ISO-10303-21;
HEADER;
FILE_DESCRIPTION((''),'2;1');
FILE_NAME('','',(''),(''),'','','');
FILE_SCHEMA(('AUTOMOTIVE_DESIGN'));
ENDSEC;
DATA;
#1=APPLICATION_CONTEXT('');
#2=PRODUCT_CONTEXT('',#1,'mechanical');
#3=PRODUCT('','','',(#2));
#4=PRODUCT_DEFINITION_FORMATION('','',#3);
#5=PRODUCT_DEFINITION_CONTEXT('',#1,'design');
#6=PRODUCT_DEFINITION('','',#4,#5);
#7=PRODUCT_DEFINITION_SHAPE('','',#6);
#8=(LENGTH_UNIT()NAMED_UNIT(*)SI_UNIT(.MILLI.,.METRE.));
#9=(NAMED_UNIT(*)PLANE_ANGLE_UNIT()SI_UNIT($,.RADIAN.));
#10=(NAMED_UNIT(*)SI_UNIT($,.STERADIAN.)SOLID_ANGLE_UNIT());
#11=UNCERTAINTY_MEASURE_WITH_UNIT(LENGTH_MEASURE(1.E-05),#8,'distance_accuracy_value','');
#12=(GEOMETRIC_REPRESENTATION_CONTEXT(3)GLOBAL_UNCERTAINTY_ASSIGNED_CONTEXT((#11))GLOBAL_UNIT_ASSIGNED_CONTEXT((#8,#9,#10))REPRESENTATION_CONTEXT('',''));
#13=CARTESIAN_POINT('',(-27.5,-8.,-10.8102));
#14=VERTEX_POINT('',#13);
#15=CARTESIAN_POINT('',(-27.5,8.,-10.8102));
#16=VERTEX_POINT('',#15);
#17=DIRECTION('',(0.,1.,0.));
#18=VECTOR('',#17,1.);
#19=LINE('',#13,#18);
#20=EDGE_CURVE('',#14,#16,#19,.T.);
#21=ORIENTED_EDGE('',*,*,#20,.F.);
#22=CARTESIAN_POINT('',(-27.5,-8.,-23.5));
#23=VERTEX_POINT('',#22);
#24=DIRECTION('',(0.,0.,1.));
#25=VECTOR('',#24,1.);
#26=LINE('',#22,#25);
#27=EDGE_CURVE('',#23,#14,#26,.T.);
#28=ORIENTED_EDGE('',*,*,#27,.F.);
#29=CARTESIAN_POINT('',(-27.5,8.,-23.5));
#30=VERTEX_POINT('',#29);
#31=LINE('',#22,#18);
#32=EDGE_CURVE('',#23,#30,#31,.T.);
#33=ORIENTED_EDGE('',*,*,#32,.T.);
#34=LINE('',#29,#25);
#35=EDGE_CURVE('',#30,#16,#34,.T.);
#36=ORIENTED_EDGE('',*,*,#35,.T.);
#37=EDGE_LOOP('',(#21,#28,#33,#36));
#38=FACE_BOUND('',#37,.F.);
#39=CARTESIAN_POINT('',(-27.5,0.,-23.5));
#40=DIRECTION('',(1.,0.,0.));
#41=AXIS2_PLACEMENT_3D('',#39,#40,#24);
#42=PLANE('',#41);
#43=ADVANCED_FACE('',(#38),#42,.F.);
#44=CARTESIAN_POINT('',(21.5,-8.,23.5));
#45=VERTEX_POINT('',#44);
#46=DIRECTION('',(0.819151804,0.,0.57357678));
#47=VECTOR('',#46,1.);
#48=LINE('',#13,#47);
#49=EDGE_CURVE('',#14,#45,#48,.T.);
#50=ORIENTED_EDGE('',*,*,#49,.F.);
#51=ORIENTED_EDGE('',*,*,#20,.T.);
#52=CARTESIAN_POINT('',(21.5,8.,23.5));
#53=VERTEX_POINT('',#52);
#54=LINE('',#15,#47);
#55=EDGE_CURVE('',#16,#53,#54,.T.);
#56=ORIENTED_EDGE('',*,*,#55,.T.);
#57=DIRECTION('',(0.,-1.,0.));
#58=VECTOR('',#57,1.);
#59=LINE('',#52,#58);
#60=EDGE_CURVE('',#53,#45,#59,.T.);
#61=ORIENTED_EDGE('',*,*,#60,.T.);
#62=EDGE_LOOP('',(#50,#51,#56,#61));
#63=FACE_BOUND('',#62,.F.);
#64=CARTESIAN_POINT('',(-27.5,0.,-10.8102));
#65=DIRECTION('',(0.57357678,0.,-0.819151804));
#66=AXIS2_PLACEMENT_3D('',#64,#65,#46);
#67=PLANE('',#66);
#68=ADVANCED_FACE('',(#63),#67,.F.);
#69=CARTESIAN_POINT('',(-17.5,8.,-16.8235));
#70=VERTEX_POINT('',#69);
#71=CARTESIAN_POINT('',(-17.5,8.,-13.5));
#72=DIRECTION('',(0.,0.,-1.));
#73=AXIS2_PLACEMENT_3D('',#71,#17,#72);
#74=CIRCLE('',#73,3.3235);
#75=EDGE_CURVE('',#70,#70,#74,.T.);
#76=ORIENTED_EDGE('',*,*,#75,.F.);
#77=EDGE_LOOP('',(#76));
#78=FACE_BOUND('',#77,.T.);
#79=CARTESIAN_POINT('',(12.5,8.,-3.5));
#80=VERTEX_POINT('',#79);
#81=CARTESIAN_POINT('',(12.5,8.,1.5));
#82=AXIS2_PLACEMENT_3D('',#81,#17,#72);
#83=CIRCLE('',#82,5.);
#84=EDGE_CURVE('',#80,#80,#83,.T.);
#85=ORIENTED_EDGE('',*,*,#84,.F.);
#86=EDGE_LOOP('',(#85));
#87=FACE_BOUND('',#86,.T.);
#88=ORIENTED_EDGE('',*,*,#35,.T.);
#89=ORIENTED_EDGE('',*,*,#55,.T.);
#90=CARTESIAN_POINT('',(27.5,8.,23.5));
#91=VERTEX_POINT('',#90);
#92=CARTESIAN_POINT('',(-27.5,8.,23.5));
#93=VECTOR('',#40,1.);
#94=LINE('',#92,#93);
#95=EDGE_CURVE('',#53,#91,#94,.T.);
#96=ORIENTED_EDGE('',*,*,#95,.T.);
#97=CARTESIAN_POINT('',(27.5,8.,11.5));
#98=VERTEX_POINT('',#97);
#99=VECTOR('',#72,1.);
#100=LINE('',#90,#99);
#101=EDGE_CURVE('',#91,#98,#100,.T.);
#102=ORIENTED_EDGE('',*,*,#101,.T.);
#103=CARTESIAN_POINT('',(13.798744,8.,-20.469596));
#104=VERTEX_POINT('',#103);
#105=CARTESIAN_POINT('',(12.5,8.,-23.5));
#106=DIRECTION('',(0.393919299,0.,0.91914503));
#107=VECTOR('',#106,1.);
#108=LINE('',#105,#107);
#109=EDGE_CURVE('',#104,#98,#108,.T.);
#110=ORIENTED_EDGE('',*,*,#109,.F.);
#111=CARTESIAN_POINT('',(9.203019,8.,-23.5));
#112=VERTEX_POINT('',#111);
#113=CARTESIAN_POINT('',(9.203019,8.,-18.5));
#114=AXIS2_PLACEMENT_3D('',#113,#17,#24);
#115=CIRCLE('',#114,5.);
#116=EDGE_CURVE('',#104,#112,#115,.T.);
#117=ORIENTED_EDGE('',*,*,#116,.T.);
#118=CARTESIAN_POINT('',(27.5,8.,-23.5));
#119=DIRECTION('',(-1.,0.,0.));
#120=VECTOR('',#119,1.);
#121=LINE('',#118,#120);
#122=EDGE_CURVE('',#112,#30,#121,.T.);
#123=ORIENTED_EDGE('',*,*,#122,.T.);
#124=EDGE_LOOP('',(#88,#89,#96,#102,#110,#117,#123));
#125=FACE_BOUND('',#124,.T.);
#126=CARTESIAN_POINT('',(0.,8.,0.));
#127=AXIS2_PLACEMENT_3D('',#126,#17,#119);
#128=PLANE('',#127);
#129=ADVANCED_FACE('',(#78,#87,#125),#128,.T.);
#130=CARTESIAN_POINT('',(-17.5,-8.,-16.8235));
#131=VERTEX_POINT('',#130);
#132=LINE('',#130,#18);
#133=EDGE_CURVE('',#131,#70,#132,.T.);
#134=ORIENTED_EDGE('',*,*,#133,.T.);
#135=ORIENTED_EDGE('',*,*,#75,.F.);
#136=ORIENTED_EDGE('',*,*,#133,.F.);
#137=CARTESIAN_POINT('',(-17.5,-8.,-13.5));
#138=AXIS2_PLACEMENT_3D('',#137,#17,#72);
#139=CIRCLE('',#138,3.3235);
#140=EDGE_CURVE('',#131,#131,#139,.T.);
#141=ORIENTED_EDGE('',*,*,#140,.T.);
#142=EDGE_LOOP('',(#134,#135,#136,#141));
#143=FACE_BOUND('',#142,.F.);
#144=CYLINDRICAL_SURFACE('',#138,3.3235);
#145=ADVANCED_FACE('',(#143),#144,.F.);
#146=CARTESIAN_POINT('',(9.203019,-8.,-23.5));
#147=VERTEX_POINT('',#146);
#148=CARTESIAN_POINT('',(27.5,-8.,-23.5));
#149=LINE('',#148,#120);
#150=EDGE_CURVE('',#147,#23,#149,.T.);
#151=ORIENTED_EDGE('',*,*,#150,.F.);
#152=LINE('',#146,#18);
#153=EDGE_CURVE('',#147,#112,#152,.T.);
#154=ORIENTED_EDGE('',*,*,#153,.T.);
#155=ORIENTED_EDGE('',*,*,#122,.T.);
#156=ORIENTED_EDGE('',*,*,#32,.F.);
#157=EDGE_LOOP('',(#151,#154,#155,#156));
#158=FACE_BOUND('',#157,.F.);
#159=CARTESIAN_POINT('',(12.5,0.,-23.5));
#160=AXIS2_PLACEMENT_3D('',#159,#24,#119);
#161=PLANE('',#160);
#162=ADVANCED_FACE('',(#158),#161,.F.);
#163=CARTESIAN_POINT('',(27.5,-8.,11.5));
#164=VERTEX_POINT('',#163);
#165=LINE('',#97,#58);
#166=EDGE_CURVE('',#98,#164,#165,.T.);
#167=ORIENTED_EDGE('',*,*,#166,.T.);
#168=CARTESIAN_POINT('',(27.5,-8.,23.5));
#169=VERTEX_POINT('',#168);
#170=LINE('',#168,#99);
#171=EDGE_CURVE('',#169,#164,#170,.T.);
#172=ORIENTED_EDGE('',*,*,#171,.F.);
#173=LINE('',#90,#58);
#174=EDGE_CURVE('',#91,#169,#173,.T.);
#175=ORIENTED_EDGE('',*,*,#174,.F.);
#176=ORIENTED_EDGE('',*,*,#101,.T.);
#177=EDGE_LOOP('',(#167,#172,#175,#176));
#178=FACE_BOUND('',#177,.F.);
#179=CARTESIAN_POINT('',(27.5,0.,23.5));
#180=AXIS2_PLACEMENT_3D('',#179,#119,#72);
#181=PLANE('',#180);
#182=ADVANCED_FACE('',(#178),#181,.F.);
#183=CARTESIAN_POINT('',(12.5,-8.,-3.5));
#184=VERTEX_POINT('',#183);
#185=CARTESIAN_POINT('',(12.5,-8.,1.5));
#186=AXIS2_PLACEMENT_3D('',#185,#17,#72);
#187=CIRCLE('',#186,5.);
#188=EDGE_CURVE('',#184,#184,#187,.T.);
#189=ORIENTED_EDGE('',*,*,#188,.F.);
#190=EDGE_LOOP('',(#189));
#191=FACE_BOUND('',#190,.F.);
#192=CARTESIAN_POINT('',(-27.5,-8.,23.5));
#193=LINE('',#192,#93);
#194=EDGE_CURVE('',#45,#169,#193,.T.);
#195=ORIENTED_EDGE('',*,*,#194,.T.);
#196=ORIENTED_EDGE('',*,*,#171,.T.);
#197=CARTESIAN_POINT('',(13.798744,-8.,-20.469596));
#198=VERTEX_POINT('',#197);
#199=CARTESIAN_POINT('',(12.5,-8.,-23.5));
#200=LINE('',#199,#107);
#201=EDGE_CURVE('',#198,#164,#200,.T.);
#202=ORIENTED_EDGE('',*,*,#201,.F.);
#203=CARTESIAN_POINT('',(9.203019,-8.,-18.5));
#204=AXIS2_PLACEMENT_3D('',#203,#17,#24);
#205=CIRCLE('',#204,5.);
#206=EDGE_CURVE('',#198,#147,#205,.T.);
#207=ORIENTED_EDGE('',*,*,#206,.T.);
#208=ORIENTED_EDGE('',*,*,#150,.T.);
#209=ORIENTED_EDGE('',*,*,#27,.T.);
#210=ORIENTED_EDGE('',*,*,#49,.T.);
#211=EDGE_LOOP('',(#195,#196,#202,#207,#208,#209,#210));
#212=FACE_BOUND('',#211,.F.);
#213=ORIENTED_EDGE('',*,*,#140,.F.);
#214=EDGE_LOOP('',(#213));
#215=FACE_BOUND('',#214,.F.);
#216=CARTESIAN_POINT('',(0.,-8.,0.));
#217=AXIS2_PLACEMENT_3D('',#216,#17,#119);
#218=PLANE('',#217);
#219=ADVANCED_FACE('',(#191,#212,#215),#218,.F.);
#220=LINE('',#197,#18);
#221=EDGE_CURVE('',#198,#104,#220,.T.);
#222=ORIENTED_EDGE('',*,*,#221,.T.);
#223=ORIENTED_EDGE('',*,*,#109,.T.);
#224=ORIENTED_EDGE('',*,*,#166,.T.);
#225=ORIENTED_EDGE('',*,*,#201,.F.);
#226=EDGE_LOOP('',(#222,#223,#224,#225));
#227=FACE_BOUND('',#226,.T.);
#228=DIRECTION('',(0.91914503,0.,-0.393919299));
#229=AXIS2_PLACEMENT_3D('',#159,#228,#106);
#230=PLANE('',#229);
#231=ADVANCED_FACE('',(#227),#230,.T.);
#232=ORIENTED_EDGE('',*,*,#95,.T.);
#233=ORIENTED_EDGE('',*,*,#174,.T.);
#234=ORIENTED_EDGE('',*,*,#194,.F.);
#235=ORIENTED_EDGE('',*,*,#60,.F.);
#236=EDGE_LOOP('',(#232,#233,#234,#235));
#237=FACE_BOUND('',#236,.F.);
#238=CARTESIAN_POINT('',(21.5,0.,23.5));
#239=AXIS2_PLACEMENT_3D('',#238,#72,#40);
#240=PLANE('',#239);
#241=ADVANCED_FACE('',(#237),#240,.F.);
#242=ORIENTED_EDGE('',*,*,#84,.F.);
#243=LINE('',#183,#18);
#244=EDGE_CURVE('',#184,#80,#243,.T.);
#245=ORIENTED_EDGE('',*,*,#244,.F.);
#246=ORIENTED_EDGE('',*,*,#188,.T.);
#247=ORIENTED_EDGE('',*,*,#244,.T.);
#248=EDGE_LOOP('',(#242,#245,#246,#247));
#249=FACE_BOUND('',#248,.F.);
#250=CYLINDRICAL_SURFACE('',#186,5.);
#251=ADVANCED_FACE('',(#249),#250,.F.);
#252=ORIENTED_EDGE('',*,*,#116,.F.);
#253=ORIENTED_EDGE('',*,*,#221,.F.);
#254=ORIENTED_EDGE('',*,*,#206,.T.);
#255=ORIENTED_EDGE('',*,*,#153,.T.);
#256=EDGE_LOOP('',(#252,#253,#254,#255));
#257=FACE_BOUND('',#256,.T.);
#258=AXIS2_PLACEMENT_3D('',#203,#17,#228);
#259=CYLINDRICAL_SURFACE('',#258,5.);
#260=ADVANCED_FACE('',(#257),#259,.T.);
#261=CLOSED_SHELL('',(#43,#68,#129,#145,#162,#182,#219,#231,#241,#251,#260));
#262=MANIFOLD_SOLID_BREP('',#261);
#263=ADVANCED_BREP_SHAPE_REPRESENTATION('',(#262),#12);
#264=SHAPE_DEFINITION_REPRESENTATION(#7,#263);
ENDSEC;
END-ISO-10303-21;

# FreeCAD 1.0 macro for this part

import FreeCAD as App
import Part
import Sketcher
Q = App.Units.Quantity


def edges_at(feature, points):
    """Names of the edges that pass closest to the given points."""
    edges = feature.Shape.Edges
    near = lambda p: min(range(len(edges)), key=lambda i: edges[i].distToShape(Part.Vertex(*p))[0])
    return sorted({f"Edge{near(p) + 1}" for p in points})

doc = App.newDocument("Part")
params = doc.addObject("Spreadsheet::Sheet", "Params")
for row, (alias, value) in enumerate([
    ("sketch1_width", "6 mm"),
    ("pad1_length", "16 mm"),
    ("sketch2_diameter", "10 mm"),
    ("hole_diameter", "10 mm"),
    ("hole2_diameter", "6.647 mm"),
    ("fillet_radius", "5 mm"),
], start=1):
    params.set(f"A{row}", alias)
    params.set(f"B{row}", "=" + value)
    params.setAlias(f"B{row}", alias)

body = doc.addObject("PartDesign::Body", "Body")

# Sketch on XZ plane
sketch1 = body.newObject("Sketcher::SketchObject", "Sketch")
sketch1.AttachmentSupport = (doc.getObject("XZ_Plane"), [""])
sketch1.MapMode = "FlatFace"
sketch1.addGeometry(Part.LineSegment(App.Vector(28, 12, 0), App.Vector(12, -24, 0)), False)
sketch1.addGeometry(Part.LineSegment(App.Vector(12, -24, 0), App.Vector(-28, -24, 0)), False)
sketch1.addGeometry(Part.LineSegment(App.Vector(-28, -24, 0), App.Vector(-28, -11, 0)), False)
sketch1.addGeometry(Part.LineSegment(App.Vector(-28, -11, 0), App.Vector(22, 24, 0)), False)
sketch1.addGeometry(Part.LineSegment(App.Vector(22, 24, 0), App.Vector(28, 24, 0)), False)
sketch1.addGeometry(Part.LineSegment(App.Vector(28, 24, 0), App.Vector(28, 12, 0)), False)
sketch1.addConstraint(Sketcher.Constraint("Coincident", 0, 2, 1, 1))
sketch1.addConstraint(Sketcher.Constraint("Coincident", 1, 2, 2, 1))
sketch1.addConstraint(Sketcher.Constraint("Coincident", 2, 2, 3, 1))
sketch1.addConstraint(Sketcher.Constraint("Coincident", 3, 2, 4, 1))
sketch1.addConstraint(Sketcher.Constraint("Coincident", 4, 2, 5, 1))
sketch1.addConstraint(Sketcher.Constraint("Coincident", 5, 2, 0, 1))
sketch1.addConstraint(Sketcher.Constraint("Horizontal", 1))
sketch1.addConstraint(Sketcher.Constraint("Vertical", 2))
sketch1.addConstraint(Sketcher.Constraint("Horizontal", 4))
sketch1.addConstraint(Sketcher.Constraint("Vertical", 5))
sketch1.addConstraint(Sketcher.Constraint("Symmetric", 1, 2, 4, 2, -1, 1))
sketch1.addConstraint(Sketcher.Constraint("DistanceX", 4, 1, 4, 2, 6.0))
sketch1.addConstraint(Sketcher.Constraint("Angle", 3, Q("35 deg")))
sketch1.addConstraint(Sketcher.Constraint("DistanceY", 0, 2, 3, 2, 47.0))
sketch1.addConstraint(Sketcher.Constraint("DistanceX", 0, 2, 4, 2, 15.0))
sketch1.addConstraint(Sketcher.Constraint("DistanceX", 2, 2, 4, 2, 55.0))
sketch1.addConstraint(Sketcher.Constraint("DistanceY", 0, 2, 5, 2, 35.0))
sketch1.setExpression("Constraints[11]", "Params.sketch1_width")
pad1 = body.newObject("PartDesign::Pad", "Pad")
pad1.Profile = sketch1
pad1.setExpression("Length", "Params.pad1_length")
pad1.Midplane = True

# Sketch on XZ plane
sketch2 = body.newObject("Sketcher::SketchObject", "Sketch001")
sketch2.AttachmentSupport = (doc.getObject("XZ_Plane"), [""])
sketch2.MapMode = "FlatFace"
sketch2.AttachmentOffset = App.Placement(App.Vector(0, 0, 8), App.Rotation())
sketch2.addGeometry(Part.Circle(App.Vector(12, 2, 0), App.Vector(0, 0, 1), 5), False)
sketch2.addConstraint(Sketcher.Constraint("Diameter", 0, 10.0))
sketch2.addConstraint(Sketcher.Constraint("DistanceX", -1, 1, 0, 3, 12.5))
sketch2.addConstraint(Sketcher.Constraint("DistanceY", -1, 1, 0, 3, 1.5))
sketch2.setExpression("Constraints[0]", "Params.sketch2_diameter")
doc.recompute()
hole = body.newObject("PartDesign::Hole", "Hole")
hole.Profile = sketch2
hole.ThreadType = "None"
hole.setExpression("Diameter", "Params.hole_diameter")
hole.DepthType = "ThroughAll"

# Sketch on XZ plane
sketch3 = body.newObject("Sketcher::SketchObject", "Sketch002")
sketch3.AttachmentSupport = (doc.getObject("XZ_Plane"), [""])
sketch3.MapMode = "FlatFace"
sketch3.AttachmentOffset = App.Placement(App.Vector(0, 0, 8), App.Rotation())
sketch3.addGeometry(Part.Circle(App.Vector(-17.5, -13.5, 0), App.Vector(0, 0, 1), 3.3), False)
sketch3.addConstraint(Sketcher.Constraint("Diameter", 0, 6.647))
sketch3.addConstraint(Sketcher.Constraint("DistanceX", 0, 3, -1, 1, 17.5))
sketch3.addConstraint(Sketcher.Constraint("DistanceY", 0, 3, -1, 1, 13.5))
doc.recompute()
hole2 = body.newObject("PartDesign::Hole", "Hole001")
hole2.Profile = sketch3
hole2.ThreadType = "None"
hole2.setExpression("Diameter", "Params.hole2_diameter")
hole2.DepthType = "ThroughAll"
doc.recompute()

fillet = body.newObject("PartDesign::Fillet", "Fillet")
fillet.Base = (hole2, edges_at(hole2, [(12.5, 0, -23.5)]))
fillet.setExpression("Radius", "Params.fillet_radius")

doc.recompute()
